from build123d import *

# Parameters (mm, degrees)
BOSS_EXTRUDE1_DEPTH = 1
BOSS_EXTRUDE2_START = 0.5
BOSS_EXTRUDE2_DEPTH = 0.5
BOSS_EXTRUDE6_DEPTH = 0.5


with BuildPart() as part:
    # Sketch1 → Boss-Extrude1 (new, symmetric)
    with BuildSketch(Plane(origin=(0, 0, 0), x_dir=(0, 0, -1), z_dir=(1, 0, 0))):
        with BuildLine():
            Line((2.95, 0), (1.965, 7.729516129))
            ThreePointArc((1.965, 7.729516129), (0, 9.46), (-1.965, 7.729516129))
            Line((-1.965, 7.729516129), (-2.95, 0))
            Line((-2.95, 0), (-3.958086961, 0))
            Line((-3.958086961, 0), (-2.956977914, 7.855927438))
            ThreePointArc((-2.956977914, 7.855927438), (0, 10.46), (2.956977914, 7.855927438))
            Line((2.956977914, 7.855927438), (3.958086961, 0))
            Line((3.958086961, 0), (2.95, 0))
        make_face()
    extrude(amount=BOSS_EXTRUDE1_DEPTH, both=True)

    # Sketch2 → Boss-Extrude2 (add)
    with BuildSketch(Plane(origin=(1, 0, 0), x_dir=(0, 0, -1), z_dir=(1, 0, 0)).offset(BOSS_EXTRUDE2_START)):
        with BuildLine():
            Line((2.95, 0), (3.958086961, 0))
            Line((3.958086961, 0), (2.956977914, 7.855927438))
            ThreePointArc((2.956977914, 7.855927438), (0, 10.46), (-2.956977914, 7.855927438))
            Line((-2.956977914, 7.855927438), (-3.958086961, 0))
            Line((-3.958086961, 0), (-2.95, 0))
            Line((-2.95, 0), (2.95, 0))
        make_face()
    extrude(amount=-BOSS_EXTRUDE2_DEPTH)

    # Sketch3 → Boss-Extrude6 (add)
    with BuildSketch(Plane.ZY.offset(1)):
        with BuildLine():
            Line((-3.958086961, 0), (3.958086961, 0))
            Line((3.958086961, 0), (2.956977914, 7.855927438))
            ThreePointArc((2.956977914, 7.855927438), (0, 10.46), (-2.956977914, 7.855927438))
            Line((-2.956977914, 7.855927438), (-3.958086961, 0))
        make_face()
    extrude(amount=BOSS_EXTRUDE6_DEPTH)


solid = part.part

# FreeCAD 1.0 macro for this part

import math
import FreeCAD as App
import Part
import Sketcher

V = App.Vector

doc = App.newDocument("Part")
params = doc.addObject("Spreadsheet::Sheet", "Params")
for row, (alias, value) in enumerate([
    ("pad1_length", "2 mm"),
    ("pad2_length", "0.5 mm"),
    ("pad3_length", "0.5 mm"),
], start=1):
    params.set(f"A{row}", alias)
    params.set(f"B{row}", "=" + value)
    params.setAlias(f"B{row}", alias)

body = doc.addObject("PartDesign::Body", "Body")

# Sketch on YZ plane
sketch1 = body.newObject("Sketcher::SketchObject", "Sketch")
sketch1.AttachmentSupport = (doc.getObject("YZ_Plane"), [""])
sketch1.MapMode = "FlatFace"
sketch1.addGeometry([
    Part.LineSegment(V(7.7, -2, 0), V(0, -3, 0)),  # 0
    Part.LineSegment(V(0, -3, 0), V(0, -4, 0)),  # 1
    Part.LineSegment(V(0, -4, 0), V(7.9, -3, 0)),  # 2
    Part.ArcOfCircle(Part.Circle(V(7.5, 0, 0), V(0, 0, 1), 3), math.radians(-83), math.radians(83)),  # 3
    Part.LineSegment(V(7.9, 3, 0), V(0, 4, 0)),  # 4
    Part.LineSegment(V(0, 4, 0), V(0, 3, 0)),  # 5
    Part.LineSegment(V(0, 3, 0), V(7.7, 2, 0)),  # 6
    Part.ArcOfCircle(Part.Circle(V(7.5, 0, 0), V(0, 0, 1), 2), math.radians(-83), math.radians(83)),  # 7
], False)
sketch1.addConstraint([
    Sketcher.Constraint("Coincident", 0, 2, 1, 1),
    Sketcher.Constraint("Coincident", 1, 2, 2, 1),
    Sketcher.Constraint("Tangent", 2, 2, 3, 1),
    Sketcher.Constraint("Tangent", 3, 2, 4, 1),
    Sketcher.Constraint("Coincident", 4, 2, 5, 1),
    Sketcher.Constraint("Coincident", 5, 2, 6, 1),
    Sketcher.Constraint("Tangent", 6, 2, 7, 2),
    Sketcher.Constraint("Tangent", 7, 1, 0, 1),
    Sketcher.Constraint("Vertical", 1),
    Sketcher.Constraint("Vertical", 5),
    Sketcher.Constraint("Coincident", 7, 3, 3, 3),
    Sketcher.Constraint("Symmetric", 1, 2, 4, 2, -1, 1),
    Sketcher.Constraint("Symmetric", 2, 2, 3, 2, -1),
    Sketcher.Constraint("Parallel", 0, 2),
    Sketcher.Constraint("Parallel", 4, 6),
    Sketcher.Constraint("DistanceY", 0, 2, 5, 2, 5.9),
    Sketcher.Constraint("Radius", 3, 2.980891),
    Sketcher.Constraint("Radius", 7, 1.980891),
    Sketcher.Constraint("Distance", 2, 7.919458),
])
pad1 = body.newObject("PartDesign::Pad", "Pad")
pad1.Profile = sketch1
pad1.setExpression("Length", "Params.pad1_length")
pad1.Midplane = True

# Sketch on YZ plane
sketch2 = body.newObject("Sketcher::SketchObject", "Sketch001")
sketch2.AttachmentSupport = (doc.getObject("YZ_Plane"), [""])
sketch2.MapMode = "FlatFace"
sketch2.AttachmentOffset = App.Placement(V(0, 0, 1.5), App.Rotation())
sketch2.addGeometry([
    Part.LineSegment(V(0, -4, 0), V(7.9, -3, 0)),
    Part.ArcOfCircle(Part.Circle(V(7.5, 0, 0), V(0, 0, 1), 3), math.radians(-83), math.radians(83)),
    Part.LineSegment(V(7.9, 3, 0), V(0, 4, 0)),
    Part.LineSegment(V(0, 4, 0), V(0, -4, 0)),
], False)
sketch2.addConstraint([
    Sketcher.Constraint("Tangent", 0, 2, 1, 1),
    Sketcher.Constraint("Tangent", 1, 2, 2, 1),
    Sketcher.Constraint("Coincident", 2, 2, 3, 1),
    Sketcher.Constraint("Coincident", 3, 2, 0, 1),
    Sketcher.Constraint("Vertical", 3),
    Sketcher.Constraint("Symmetric", 2, 2, 3, 2, -1, 1),
    Sketcher.Constraint("PointOnObject", 1, 3, -1),
    Sketcher.Constraint("Radius", 1, 2.980891),
    Sketcher.Constraint("Distance", 0, 7.919458),
    Sketcher.Constraint("DistanceY", 3, 2, 3, 1, 7.916174),
])
pad2 = body.newObject("PartDesign::Pad", "Pad001")
pad2.Profile = sketch2
pad2.setExpression("Length", "Params.pad2_length")
pad2.Reversed = True

# Sketch on YZ plane
sketch3 = body.newObject("Sketcher::SketchObject", "Sketch002")
sketch3.AttachmentSupport = (doc.getObject("YZ_Plane"), [""])
sketch3.MapMode = "FlatFace"
sketch3.AttachmentOffset = App.Placement(V(0, 0, -1), App.Rotation())
sketch3.addGeometry([
    Part.LineSegment(V(0, -4, 0), V(0, 4, 0)),
    Part.LineSegment(V(0, 4, 0), V(7.9, 3, 0)),
    Part.ArcOfCircle(Part.Circle(V(7.5, 0, 0), V(0, 0, 1), 3), math.radians(-83), math.radians(83)),
    Part.LineSegment(V(7.9, -3, 0), V(0, -4, 0)),
], False)
sketch3.addConstraint([
    Sketcher.Constraint("Coincident", 0, 2, 1, 1),
    Sketcher.Constraint("Tangent", 1, 2, 2, 2),
    Sketcher.Constraint("Tangent", 2, 1, 3, 1),
    Sketcher.Constraint("Coincident", 3, 2, 0, 1),
    Sketcher.Constraint("Vertical", 0),
    Sketcher.Constraint("Symmetric", 0, 2, 3, 2, -1, 1),
    Sketcher.Constraint("PointOnObject", 2, 3, -1),
    Sketcher.Constraint("Radius", 2, 2.980891),
    Sketcher.Constraint("Distance", 1, 7.919458),
    Sketcher.Constraint("DistanceY", 0, 1, 0, 2, 7.916174),
])
pad3 = body.newObject("PartDesign::Pad", "Pad002")
pad3.Profile = sketch3
pad3.setExpression("Length", "Params.pad3_length")
pad3.Reversed = True

doc.recompute()
